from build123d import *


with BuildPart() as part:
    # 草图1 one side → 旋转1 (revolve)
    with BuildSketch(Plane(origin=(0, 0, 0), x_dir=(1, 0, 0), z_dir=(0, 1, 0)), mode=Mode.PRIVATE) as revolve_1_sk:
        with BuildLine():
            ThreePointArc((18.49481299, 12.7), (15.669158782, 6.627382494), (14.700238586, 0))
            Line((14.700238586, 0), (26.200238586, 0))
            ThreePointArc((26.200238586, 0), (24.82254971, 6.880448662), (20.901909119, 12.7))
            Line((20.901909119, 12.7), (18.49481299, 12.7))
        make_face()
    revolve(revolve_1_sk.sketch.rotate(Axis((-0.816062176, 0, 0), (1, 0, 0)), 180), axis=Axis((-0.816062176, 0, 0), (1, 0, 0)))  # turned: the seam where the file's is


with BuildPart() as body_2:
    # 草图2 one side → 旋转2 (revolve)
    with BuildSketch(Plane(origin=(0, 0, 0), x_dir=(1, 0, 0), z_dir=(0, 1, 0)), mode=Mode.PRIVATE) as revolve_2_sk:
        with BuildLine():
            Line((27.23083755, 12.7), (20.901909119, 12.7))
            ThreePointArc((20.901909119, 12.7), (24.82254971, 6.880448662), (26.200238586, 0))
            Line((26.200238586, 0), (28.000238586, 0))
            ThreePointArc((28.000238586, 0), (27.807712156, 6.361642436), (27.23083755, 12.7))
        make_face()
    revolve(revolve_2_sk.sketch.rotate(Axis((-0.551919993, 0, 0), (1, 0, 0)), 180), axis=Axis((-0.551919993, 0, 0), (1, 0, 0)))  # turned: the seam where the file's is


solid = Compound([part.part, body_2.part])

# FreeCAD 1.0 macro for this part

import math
import FreeCAD as App
import Part
import Sketcher

V = App.Vector
Q = App.Units.Quantity

doc = App.newDocument("Part")
body = doc.addObject("PartDesign::Body", "Body")

# Sketch on XZ plane
sketch1 = body.newObject("Sketcher::SketchObject", "Sketch")
sketch1.AttachmentSupport = (doc.getObject("XZ_Plane"), [""])
sketch1.MapMode = "FlatFace"
sketch1.addGeometry([
    Part.ArcOfCircle(Part.Circle(V(37.850239, 0, 0), V(0, 0, 1), 23.15), math.radians(-180), math.radians(-146.729246)),
    Part.LineSegment(V(14.700239, 0, 0), V(26.200239, 0, 0)),
    Part.ArcOfCircle(Part.Circle(V(8.330239, 0, 0), V(0, 0, 1), 17.87), math.radians(-45.290945), math.radians(0)),
    Part.LineSegment(V(20.901909, -12.7, 0), V(18.494813, -12.7, 0)),
], False)
sketch1.addConstraint([
    Sketcher.Constraint("Coincident", 0, 1, 1, 1),
    Sketcher.Constraint("Coincident", 1, 2, 2, 2),
    Sketcher.Constraint("Coincident", 2, 1, 3, 1),
    Sketcher.Constraint("Coincident", 3, 2, 0, 2),
    Sketcher.Constraint("Horizontal", 1),
    Sketcher.Constraint("Horizontal", 3),
    Sketcher.Constraint("PointOnObject", 0, 3, -1),
    Sketcher.Constraint("PointOnObject", 2, 3, -1),
    Sketcher.Constraint("PointOnObject", 0, 1, -1),
    Sketcher.Constraint("Radius", 0, Q("23.15 mm")),
    Sketcher.Constraint("Radius", 2, Q("17.87 mm")),
    Sketcher.Constraint("DistanceX", 1, 1, 1, 2, Q("11.5 mm")),
    Sketcher.Constraint("DistanceY", 2, 1, -1, 1, Q("12.7 mm")),
    Sketcher.Constraint("DistanceX", -1, 1, 0, 3, Q("37.850239 mm")),
])
revolution = body.newObject("PartDesign::Revolution", "Revolution")
revolution.Profile = sketch1
revolution.ReferenceAxis = (sketch1, ["H_Axis"])
revolution.Angle = 360
body2 = doc.addObject("PartDesign::Body", "Body001")

# Sketch on XZ plane
sketch2 = body2.newObject("Sketcher::SketchObject", "Sketch001")
sketch2.AttachmentSupport = (doc.getObject("XZ_Plane001"), [""])
sketch2.MapMode = "FlatFace"
sketch2.addGeometry([
    Part.LineSegment(V(27.230838, -12.7, 0), V(20.901909, -12.7, 0)),
    Part.ArcOfCircle(Part.Circle(V(8.330239, 0, 0), V(0, 0, 1), 17.87), math.radians(-45.290945), math.radians(0)),
    Part.LineSegment(V(26.200239, 0, 0), V(28.000239, 0, 0)),
    Part.ArcOfCircle(Part.Circle(V(-77.199761, 0, 0), V(0, 0, 1), 105.2), math.radians(-6.933798), math.radians(0)),
], False)
sketch2.addConstraint([
    Sketcher.Constraint("Coincident", 0, 2, 1, 1),
    Sketcher.Constraint("Coincident", 1, 2, 2, 1),
    Sketcher.Constraint("Coincident", 2, 2, 3, 2),
    Sketcher.Constraint("Coincident", 3, 1, 0, 1),
    Sketcher.Constraint("Horizontal", 0),
    Sketcher.Constraint("Horizontal", 2),
    Sketcher.Constraint("PointOnObject", 1, 3, -1),
    Sketcher.Constraint("PointOnObject", 3, 3, -1),
    Sketcher.Constraint("PointOnObject", 1, 2, -1),
    Sketcher.Constraint("Radius", 3, Q("105.2 mm")),
    Sketcher.Constraint("Radius", 1, Q("17.87 mm")),
    Sketcher.Constraint("DistanceX", 2, 1, 2, 2, Q("1.8 mm")),
    Sketcher.Constraint("DistanceY", 0, 2, -1, 1, Q("12.7 mm")),
    Sketcher.Constraint("DistanceX", -1, 1, 1, 3, Q("8.330239 mm")),
])
revolution2 = body2.newObject("PartDesign::Revolution", "Revolution001")
revolution2.Profile = sketch2
revolution2.ReferenceAxis = (sketch2, ["H_Axis"])
revolution2.Angle = 360

doc.recompute()
